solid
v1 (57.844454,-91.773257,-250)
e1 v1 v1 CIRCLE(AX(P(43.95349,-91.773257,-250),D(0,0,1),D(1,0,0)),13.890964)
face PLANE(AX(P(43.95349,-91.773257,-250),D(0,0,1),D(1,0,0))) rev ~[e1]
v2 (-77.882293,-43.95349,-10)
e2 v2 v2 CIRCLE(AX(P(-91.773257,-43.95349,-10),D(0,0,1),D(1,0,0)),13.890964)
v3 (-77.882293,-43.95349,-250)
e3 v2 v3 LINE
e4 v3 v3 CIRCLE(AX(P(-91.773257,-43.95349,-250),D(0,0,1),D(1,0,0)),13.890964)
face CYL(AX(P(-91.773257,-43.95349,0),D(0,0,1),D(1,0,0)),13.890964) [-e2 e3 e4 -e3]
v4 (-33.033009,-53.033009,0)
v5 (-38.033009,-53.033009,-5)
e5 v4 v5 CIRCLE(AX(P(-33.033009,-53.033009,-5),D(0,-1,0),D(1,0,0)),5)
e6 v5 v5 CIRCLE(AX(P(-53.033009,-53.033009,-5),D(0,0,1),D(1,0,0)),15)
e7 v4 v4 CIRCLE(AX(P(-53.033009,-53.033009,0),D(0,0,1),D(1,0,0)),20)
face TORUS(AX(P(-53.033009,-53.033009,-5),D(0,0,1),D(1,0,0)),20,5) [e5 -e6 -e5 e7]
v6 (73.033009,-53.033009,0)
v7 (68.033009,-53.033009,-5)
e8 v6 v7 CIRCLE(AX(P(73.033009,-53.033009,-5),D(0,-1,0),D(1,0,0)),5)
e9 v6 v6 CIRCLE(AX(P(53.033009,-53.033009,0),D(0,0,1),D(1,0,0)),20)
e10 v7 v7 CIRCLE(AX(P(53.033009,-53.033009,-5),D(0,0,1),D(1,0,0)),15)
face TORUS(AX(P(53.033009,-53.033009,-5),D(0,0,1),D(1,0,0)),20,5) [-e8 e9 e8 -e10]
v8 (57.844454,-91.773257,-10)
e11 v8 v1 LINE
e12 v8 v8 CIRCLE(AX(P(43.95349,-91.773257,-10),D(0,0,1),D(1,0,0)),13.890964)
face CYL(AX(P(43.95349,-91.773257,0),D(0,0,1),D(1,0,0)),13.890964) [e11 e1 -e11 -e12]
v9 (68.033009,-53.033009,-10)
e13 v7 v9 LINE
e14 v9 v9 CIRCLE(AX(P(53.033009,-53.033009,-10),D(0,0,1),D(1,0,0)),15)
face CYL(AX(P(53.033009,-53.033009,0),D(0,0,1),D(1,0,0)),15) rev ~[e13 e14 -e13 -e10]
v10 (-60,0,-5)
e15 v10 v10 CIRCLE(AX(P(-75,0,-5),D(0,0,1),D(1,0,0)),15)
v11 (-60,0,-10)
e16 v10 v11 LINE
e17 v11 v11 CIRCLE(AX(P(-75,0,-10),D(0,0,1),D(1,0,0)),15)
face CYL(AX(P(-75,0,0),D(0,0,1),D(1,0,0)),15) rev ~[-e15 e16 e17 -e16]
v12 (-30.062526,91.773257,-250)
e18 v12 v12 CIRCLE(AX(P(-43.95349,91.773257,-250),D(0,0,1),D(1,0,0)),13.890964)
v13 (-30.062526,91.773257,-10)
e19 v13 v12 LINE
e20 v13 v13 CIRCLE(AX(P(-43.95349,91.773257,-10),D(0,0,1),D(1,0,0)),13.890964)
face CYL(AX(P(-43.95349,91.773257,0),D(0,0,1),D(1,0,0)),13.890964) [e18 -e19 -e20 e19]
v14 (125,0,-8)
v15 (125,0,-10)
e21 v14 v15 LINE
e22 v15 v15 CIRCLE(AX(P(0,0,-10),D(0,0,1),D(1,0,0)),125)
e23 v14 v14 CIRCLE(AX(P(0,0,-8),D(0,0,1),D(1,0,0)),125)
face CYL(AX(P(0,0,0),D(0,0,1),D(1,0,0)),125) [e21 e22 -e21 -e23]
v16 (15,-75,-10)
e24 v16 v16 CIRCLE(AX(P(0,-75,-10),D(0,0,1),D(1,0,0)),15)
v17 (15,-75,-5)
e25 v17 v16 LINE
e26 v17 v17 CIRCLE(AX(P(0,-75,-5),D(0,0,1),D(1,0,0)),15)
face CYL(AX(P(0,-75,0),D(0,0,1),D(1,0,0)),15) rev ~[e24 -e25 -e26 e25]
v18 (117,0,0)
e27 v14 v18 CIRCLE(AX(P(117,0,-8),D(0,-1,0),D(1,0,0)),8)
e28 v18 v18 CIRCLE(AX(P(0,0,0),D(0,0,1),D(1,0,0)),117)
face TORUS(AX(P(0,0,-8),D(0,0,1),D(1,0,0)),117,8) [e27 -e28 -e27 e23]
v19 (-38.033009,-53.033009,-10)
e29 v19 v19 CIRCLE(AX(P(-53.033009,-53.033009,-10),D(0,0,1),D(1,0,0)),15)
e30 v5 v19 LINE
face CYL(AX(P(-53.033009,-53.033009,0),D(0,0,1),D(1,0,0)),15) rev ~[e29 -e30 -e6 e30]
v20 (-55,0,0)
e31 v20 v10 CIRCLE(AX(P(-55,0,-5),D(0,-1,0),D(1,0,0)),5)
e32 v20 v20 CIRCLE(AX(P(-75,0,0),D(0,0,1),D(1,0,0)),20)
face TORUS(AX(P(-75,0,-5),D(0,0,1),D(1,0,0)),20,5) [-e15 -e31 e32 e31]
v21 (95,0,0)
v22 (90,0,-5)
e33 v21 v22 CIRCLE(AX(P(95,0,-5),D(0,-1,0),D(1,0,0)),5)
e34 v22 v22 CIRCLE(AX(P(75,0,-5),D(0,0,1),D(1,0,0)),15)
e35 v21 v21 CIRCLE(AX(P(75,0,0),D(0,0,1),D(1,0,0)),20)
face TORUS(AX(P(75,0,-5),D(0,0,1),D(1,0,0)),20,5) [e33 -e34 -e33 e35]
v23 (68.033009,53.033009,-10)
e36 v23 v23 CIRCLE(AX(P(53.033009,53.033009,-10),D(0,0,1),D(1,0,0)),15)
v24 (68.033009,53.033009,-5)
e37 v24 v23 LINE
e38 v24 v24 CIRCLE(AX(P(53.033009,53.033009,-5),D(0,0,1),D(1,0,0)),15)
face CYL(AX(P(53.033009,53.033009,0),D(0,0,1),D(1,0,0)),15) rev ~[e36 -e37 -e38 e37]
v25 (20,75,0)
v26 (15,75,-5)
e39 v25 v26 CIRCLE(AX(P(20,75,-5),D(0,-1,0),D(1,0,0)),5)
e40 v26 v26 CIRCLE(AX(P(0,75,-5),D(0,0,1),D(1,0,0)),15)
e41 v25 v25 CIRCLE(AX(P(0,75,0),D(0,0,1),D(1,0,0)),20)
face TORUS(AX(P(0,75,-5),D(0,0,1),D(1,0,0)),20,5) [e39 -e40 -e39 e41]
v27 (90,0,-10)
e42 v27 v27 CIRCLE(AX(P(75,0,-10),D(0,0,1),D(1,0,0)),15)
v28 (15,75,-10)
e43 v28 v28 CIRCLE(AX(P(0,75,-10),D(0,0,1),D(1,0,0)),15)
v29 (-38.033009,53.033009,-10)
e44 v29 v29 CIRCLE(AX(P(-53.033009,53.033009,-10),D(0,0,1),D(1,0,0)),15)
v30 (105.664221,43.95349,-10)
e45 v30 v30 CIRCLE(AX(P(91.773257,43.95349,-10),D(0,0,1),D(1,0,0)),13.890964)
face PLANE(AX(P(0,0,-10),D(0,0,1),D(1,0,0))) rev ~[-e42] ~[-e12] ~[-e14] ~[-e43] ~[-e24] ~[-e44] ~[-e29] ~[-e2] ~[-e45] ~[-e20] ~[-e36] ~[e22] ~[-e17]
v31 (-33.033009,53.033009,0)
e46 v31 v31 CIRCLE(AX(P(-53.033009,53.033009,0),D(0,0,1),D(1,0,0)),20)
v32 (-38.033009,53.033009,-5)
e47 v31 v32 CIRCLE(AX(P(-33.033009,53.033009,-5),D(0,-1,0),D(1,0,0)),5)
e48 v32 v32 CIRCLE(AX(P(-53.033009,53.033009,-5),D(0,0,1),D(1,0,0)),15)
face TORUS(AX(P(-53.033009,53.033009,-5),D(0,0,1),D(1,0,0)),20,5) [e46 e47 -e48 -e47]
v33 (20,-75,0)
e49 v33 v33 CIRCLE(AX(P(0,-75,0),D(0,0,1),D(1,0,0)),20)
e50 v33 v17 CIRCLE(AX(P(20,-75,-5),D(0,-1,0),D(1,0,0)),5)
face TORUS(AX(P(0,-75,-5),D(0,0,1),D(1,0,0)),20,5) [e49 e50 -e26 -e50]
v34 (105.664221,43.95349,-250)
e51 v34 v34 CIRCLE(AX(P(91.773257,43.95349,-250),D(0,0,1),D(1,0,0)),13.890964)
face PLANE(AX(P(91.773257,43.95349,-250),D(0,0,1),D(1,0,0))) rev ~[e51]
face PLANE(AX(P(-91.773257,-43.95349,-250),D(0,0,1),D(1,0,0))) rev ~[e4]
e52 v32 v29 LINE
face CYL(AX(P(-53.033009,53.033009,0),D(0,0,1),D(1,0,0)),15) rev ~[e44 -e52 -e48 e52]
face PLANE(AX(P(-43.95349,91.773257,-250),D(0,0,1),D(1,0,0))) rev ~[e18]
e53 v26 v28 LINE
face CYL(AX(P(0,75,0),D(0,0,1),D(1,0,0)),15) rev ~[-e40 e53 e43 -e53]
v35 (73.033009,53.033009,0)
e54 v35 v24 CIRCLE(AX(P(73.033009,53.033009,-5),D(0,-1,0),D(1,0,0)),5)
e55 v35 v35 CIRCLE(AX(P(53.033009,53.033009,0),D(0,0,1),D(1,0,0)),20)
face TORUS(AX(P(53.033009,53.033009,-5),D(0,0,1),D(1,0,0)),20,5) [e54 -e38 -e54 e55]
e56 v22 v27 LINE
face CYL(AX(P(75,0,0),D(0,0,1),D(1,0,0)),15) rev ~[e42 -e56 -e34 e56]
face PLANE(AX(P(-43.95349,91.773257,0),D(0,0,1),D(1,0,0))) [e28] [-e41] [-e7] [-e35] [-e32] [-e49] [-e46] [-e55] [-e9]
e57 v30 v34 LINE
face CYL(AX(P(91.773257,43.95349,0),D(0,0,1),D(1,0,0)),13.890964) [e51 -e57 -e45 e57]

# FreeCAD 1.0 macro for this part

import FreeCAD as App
import Part
import Sketcher
from FreeCAD import Vector


def edges_at(feature, points):
    """Names of the edges that pass closest to the given points."""
    edges = feature.Shape.Edges
    near = lambda p: min(range(len(edges)), key=lambda i: edges[i].distToShape(Part.Vertex(*p))[0])
    return sorted({f"Edge{near(p) + 1}" for p in points})

doc = App.newDocument("Part")
body = doc.addObject("PartDesign::Body", "Body")

# Sketch on XY plane
sketch1 = body.newObject("Sketcher::SketchObject", "Sketch")
sketch1.AttachmentSupport = (doc.getObject("XY_Plane"), [""])
sketch1.MapMode = "FlatFace"
sketch1.addGeometry(Part.Circle(Vector(0, 0, 0), Vector(0, 0, 1), 125), False)
sketch1.addConstraint([
    Sketcher.Constraint("Coincident", 0, 3, -1, 1),
    Sketcher.Constraint("Diameter", 0, 250.0),
])
pad1 = body.newObject("PartDesign::Pad", "Pad")
pad1.Profile = sketch1
pad1.Length = 10
pad1.Reversed = True

# Sketch on XY plane
sketch2 = body.newObject("Sketcher::SketchObject", "Sketch001")
sketch2.AttachmentSupport = (doc.getObject("XY_Plane"), [""])
sketch2.MapMode = "FlatFace"
sketch2.addGeometry([
    Part.Circle(Vector(0, 75, 0), Vector(0, 0, 1), 15),  # 0
    Part.Circle(Vector(-53, 53, 0), Vector(0, 0, 1), 15),  # 1
    Part.Circle(Vector(-75, 0, 0), Vector(0, 0, 1), 15),  # 2
    Part.Circle(Vector(-53, -53, 0), Vector(0, 0, 1), 15),  # 3
    Part.Circle(Vector(0, -75, 0), Vector(0, 0, 1), 15),  # 4
    Part.Circle(Vector(53, -53, 0), Vector(0, 0, 1), 15),  # 5
    Part.Circle(Vector(75, 0, 0), Vector(0, 0, 1), 15),  # 6
    Part.Circle(Vector(53, 53, 0), Vector(0, 0, 1), 15),  # 7
], False)
sketch2.addConstraint([
    Sketcher.Constraint("Equal", 0, 1),
    Sketcher.Constraint("Equal", 1, 2),
    Sketcher.Constraint("Equal", 2, 3),
    Sketcher.Constraint("Equal", 3, 4),
    Sketcher.Constraint("Equal", 4, 5),
    Sketcher.Constraint("Equal", 5, 6),
    Sketcher.Constraint("Equal", 6, 7),
    Sketcher.Constraint("Symmetric", 0, 3, 4, 3, -1, 1),
    Sketcher.Constraint("Symmetric", 1, 3, 5, 3, -1, 1),
    Sketcher.Constraint("Symmetric", 2, 3, 6, 3, -1, 1),
    Sketcher.Constraint("Symmetric", 3, 3, 7, 3, -1, 1),
    Sketcher.Constraint("Symmetric", 3, 3, 5, 3, -2),
    Sketcher.Constraint("PointOnObject", 0, 3, -2),
    Sketcher.Constraint("PointOnObject", 2, 3, -1),
    Sketcher.Constraint("Diameter", 0, 30.0),
    Sketcher.Constraint("DistanceY", -1, 1, 0, 3, 75.0),
    Sketcher.Constraint("DistanceX", 2, 3, -1, 1, 75.0),
    Sketcher.Constraint("DistanceX", 1, 3, -1, 1, 53.033009),
    Sketcher.Constraint("DistanceY", -1, 1, 1, 3, 53.033009),
])
pocket1 = body.newObject("PartDesign::Pocket", "Pocket")
pocket1.Profile = sketch2
pocket1.Length = 10
doc.recompute()

fillet = body.newObject("PartDesign::Fillet", "Fillet")
fillet.Base = (pocket1, edges_at(pocket1, [(-125, 0, 0)]))
fillet.Radius = 8
doc.recompute()

fillet2 = body.newObject("PartDesign::Fillet", "Fillet001")
fillet2.Base = (fillet, edges_at(fillet, [
    (-117, 0, 0),
    (-68.033, -53.033, 0),
    (-15, -75, 0),
    (38.033, -53.033, 0),
    (-90, 0, 0),
    (-68.033, 53.033, 0),
    (60, 0, 0),
    (-15, 75, 0),
    (38.033, 53.033, 0),
]))
fillet2.Radius = 5

# Sketch on XY plane
sketch3 = body.newObject("Sketcher::SketchObject", "Sketch002")
sketch3.AttachmentSupport = (doc.getObject("XY_Plane"), [""])
sketch3.MapMode = "FlatFace"
sketch3.addGeometry([
    Part.Circle(Vector(-44, 92, 0), Vector(0, 0, 1), 14),
    Part.Circle(Vector(-92, -44, 0), Vector(0, 0, 1), 14),
    Part.Circle(Vector(44, -92, 0), Vector(0, 0, 1), 14),
    Part.Circle(Vector(92, 44, 0), Vector(0, 0, 1), 14),
], False)
sketch3.addConstraint([
    Sketcher.Constraint("Equal", 0, 1),
    Sketcher.Constraint("Equal", 1, 2),
    Sketcher.Constraint("Equal", 2, 3),
    Sketcher.Constraint("Symmetric", 0, 3, 2, 3, -1, 1),
    Sketcher.Constraint("Symmetric", 1, 3, 3, 3, -1, 1),
    Sketcher.Constraint("Diameter", 0, 27.781928),
    Sketcher.Constraint("DistanceX", 0, 3, -1, 1, 43.95349),
    Sketcher.Constraint("DistanceY", 1, 3, -1, 1, 43.95349),
    Sketcher.Constraint("DistanceY", -1, 1, 0, 3, 91.773257),
    Sketcher.Constraint("DistanceX", 1, 3, -1, 1, 91.773257),
])
pad2 = body.newObject("PartDesign::Pad", "Pad001")
pad2.Profile = sketch3
pad2.Length = 250
pad2.Reversed = True

doc.recompute()
